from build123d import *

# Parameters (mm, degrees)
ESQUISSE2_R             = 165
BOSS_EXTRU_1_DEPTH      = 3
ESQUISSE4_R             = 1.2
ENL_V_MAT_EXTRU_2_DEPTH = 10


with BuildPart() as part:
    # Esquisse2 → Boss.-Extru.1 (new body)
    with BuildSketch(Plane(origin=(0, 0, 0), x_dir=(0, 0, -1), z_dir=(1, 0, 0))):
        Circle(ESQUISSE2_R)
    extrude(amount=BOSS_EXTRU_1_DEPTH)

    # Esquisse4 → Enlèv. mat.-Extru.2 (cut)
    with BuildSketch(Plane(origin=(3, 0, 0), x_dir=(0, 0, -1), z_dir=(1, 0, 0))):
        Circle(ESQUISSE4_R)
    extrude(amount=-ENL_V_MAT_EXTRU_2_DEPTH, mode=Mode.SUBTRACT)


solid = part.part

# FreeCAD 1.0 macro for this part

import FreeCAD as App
import Part
import Sketcher

V = App.Vector

doc = App.newDocument("Part")
params = doc.addObject("Spreadsheet::Sheet", "Params")
for row, (alias, value) in enumerate([
    ("sketch1_diameter", "330 mm"),
    ("pad1_length", "3 mm"),
    ("sketch2_diameter", "2.4 mm"),
    ("pocket1_length", "10 mm"),
], start=1):
    params.set(f"A{row}", alias)
    params.set(f"B{row}", "=" + value)
    params.setAlias(f"B{row}", alias)

body = doc.addObject("PartDesign::Body", "Body")

# Sketch on YZ plane
sketch1 = body.newObject("Sketcher::SketchObject", "Sketch")
sketch1.AttachmentSupport = (doc.getObject("YZ_Plane"), [""])
sketch1.MapMode = "FlatFace"
sketch1.addGeometry(Part.Circle(V(0, 0, 0), V(0, 0, 1), 165), False)
sketch1.addConstraint([
    Sketcher.Constraint("Coincident", 0, 3, -1, 1),
    Sketcher.Constraint("Diameter", 0, 330.0),
])
sketch1.setExpression("Constraints[1]", "Params.sketch1_diameter")
pad1 = body.newObject("PartDesign::Pad", "Pad")
pad1.Profile = sketch1
pad1.setExpression("Length", "Params.pad1_length")

# Sketch on YZ plane
sketch2 = body.newObject("Sketcher::SketchObject", "Sketch001")
sketch2.AttachmentSupport = (doc.getObject("YZ_Plane"), [""])
sketch2.MapMode = "FlatFace"
sketch2.AttachmentOffset = App.Placement(V(0, 0, 3), App.Rotation())
sketch2.addGeometry(Part.Circle(V(0, 0, 0), V(0, 0, 1), 1.2), False)
sketch2.addConstraint([
    Sketcher.Constraint("Coincident", 0, 3, -1, 1),
    Sketcher.Constraint("Diameter", 0, 2.4),
])
sketch2.setExpression("Constraints[1]", "Params.sketch2_diameter")
pocket1 = body.newObject("PartDesign::Pocket", "Pocket")
pocket1.Profile = sketch2
pocket1.setExpression("Length", "Params.pocket1_length")

doc.recompute()
